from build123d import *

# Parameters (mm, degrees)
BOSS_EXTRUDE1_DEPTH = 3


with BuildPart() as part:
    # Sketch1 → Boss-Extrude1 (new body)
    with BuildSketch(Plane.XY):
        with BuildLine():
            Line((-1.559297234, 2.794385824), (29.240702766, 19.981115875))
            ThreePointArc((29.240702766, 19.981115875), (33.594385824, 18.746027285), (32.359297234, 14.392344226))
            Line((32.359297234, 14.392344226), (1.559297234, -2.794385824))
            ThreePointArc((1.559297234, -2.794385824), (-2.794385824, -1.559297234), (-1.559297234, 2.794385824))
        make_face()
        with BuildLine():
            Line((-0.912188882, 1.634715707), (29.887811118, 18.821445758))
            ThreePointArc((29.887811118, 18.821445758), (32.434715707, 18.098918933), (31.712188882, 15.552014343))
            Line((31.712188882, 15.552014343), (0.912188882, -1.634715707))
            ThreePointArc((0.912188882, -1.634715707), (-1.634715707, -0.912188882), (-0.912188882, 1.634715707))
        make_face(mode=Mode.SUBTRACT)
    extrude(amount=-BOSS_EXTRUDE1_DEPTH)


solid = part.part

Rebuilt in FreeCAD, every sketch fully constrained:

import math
import FreeCAD as App
import Part
import Sketcher
Q = App.Units.Quantity

doc = App.newDocument("Part")
body = doc.addObject("PartDesign::Body", "Body")

# Sketch on XY plane
sketch1 = body.newObject("Sketcher::SketchObject", "Sketch")
sketch1.AttachmentSupport = (doc.getObject("XY_Plane"), [""])
sketch1.MapMode = "FlatFace"
sketch1.addGeometry(Part.LineSegment(App.Vector(29.2, 20, 0), App.Vector(-1.6, 2.8, 0)), False)
sketch1.addGeometry(Part.ArcOfCircle(Part.Circle(App.Vector(0, 0, 0), App.Vector(0, 0, 1), 3.2), math.radians(119), math.radians(299)), False)
sketch1.addGeometry(Part.LineSegment(App.Vector(1.6, -2.8, 0), App.Vector(32.4, 14.4, 0)), False)
sketch1.addGeometry(Part.ArcOfCircle(Part.Circle(App.Vector(30.8, 17.2, 0), App.Vector(0, 0, 1), 3.2), math.radians(-61), math.radians(119)), False)
sketch1.addGeometry(Part.LineSegment(App.Vector(-0.9, 1.6, 0), App.Vector(29.9, 18.8, 0)), False)
sketch1.addGeometry(Part.ArcOfCircle(Part.Circle(App.Vector(30.8, 17.2, 0), App.Vector(0, 0, 1), 1.9), math.radians(-61), math.radians(119)), False)
sketch1.addGeometry(Part.LineSegment(App.Vector(31.7, 15.6, 0), App.Vector(0.9, -1.6, 0)), False)
sketch1.addGeometry(Part.ArcOfCircle(Part.Circle(App.Vector(0, 0, 0), App.Vector(0, 0, 1), 1.9), math.radians(119), math.radians(299)), False)
sketch1.addConstraint(Sketcher.Constraint("Tangent", 0, 2, 1, 1))
sketch1.addConstraint(Sketcher.Constraint("Tangent", 1, 2, 2, 1))
sketch1.addConstraint(Sketcher.Constraint("Tangent", 2, 2, 3, 1))
sketch1.addConstraint(Sketcher.Constraint("Tangent", 3, 2, 0, 1))
sketch1.addConstraint(Sketcher.Constraint("Tangent", 4, 2, 5, 2))
sketch1.addConstraint(Sketcher.Constraint("Tangent", 5, 1, 6, 1))
sketch1.addConstraint(Sketcher.Constraint("Tangent", 6, 2, 7, 2))
sketch1.addConstraint(Sketcher.Constraint("Tangent", 7, 1, 4, 1))
sketch1.addConstraint(Sketcher.Constraint("Coincident", 1, 3, -1, 1))
sketch1.addConstraint(Sketcher.Constraint("Coincident", 7, 3, -1, 1))
sketch1.addConstraint(Sketcher.Constraint("Coincident", 5, 3, 3, 3))
sketch1.addConstraint(Sketcher.Constraint("Equal", 1, 3))
sketch1.addConstraint(Sketcher.Constraint("Equal", 5, 7))
sketch1.addConstraint(Sketcher.Constraint("Radius", 1, Q("3.2 mm")))
sketch1.addConstraint(Sketcher.Constraint("Radius", 5, Q("1.872 mm")))
sketch1.addConstraint(Sketcher.Constraint("DistanceX", -1, 1, 3, 3, Q("30.8 mm")))
sketch1.addConstraint(Sketcher.Constraint("DistanceY", 2, 2, 4, 2, Q("4.429102 mm")))
pad1 = body.newObject("PartDesign::Pad", "Pad")
pad1.Profile = sketch1
pad1.Length = 3
pad1.Reversed = True

doc.recompute()
